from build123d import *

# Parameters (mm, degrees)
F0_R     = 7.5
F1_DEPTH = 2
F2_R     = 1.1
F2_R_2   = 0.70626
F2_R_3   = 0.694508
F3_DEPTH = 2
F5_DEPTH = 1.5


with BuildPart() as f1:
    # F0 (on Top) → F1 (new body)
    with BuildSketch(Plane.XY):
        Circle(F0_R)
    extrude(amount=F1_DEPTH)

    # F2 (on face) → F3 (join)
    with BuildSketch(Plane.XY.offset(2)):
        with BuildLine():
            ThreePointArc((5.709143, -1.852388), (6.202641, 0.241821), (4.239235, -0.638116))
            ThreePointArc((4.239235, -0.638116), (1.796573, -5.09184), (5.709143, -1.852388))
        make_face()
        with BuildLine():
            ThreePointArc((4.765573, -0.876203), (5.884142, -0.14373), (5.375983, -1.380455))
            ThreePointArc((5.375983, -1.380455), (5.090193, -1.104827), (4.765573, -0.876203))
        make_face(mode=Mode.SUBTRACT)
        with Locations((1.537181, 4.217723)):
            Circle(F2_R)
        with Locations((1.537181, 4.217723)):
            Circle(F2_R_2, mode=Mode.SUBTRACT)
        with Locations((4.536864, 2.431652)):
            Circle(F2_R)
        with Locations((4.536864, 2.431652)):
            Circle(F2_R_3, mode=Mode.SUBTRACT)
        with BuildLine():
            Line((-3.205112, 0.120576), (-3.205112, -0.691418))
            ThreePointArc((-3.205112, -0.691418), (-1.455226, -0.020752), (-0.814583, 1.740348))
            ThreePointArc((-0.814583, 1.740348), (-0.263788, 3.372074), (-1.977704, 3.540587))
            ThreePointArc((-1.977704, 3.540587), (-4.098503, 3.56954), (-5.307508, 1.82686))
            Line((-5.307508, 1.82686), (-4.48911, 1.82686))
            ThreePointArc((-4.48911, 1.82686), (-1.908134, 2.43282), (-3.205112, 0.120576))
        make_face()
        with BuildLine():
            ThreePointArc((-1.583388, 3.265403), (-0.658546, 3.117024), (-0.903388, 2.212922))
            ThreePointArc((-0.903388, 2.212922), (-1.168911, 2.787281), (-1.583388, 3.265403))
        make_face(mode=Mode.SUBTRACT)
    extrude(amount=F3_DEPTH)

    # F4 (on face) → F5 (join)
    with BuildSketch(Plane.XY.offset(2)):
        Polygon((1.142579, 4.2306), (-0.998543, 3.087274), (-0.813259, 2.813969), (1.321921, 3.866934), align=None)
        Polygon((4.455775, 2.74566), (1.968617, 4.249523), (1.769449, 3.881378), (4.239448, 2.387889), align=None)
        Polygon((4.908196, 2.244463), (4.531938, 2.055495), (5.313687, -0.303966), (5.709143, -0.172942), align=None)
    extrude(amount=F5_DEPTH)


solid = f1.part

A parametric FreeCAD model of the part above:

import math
import FreeCAD as App
import Part
import Sketcher
from FreeCAD import Vector
Q = App.Units.Quantity

doc = App.newDocument("Part")
body = doc.addObject("PartDesign::Body", "Body")

# Sketch on XY plane
sketch1 = body.newObject("Sketcher::SketchObject", "Sketch")
sketch1.AttachmentSupport = (doc.getObject("XY_Plane"), [""])
sketch1.MapMode = "FlatFace"
sketch1.addGeometry(Part.Circle(Vector(0, 0, 0), Vector(0, 0, 1), 8), False)
sketch1.addConstraint([
    Sketcher.Constraint("Coincident", 0, 3, -1, 1),
    Sketcher.Constraint("Diameter", 0, Q("15 mm")),
])
pad1 = body.newObject("PartDesign::Pad", "Pad")
pad1.Profile = sketch1
pad1.Length = 2

# Sketch on XY plane
sketch2 = body.newObject("Sketcher::SketchObject", "Sketch001")
sketch2.AttachmentSupport = (doc.getObject("XY_Plane"), [""])
sketch2.MapMode = "FlatFace"
sketch2.AttachmentOffset = App.Placement(Vector(0, 0, 2), App.Rotation())
sketch2.addGeometry([
    Part.ArcOfCircle(Part.Circle(Vector(5.4, -0.7, 0), Vector(0, 0, 1), 1.2), math.radians(-77), math.radians(178)),  # 0
    Part.ArcOfCircle(Part.Circle(Vector(3.4, -3.1, 0), Vector(0, 0, 1), 2.6), math.radians(72), math.radians(389)),  # 1
    Part.ArcOfCircle(Part.Circle(Vector(3.4, -3.1, 0), Vector(0, 0, 1), 2.6), math.radians(41.63), math.radians(59.25)),  # 2
    Part.ArcOfCircle(Part.Circle(Vector(5.4, -0.7, 0), Vector(0, 0, 1), 0.7), math.radians(-95), math.radians(196)),  # 3
    Part.Circle(Vector(1.5, 4.2, 0), Vector(0, 0, 1), 1.1),  # 4
    Part.Circle(Vector(1.5, 4.2, 0), Vector(0, 0, 1), 0.7),  # 5
    Part.Circle(Vector(4.5, 2.4, 0), Vector(0, 0, 1), 1.1),  # 6
    Part.Circle(Vector(4.5, 2.4, 0), Vector(0, 0, 1), 0.7),  # 7
    Part.LineSegment(Vector(-3.2, 0.1, 0), Vector(-3.2, -0.7, 0)),  # 8
    Part.ArcOfCircle(Part.Circle(Vector(-3.1, 1.6, 0), Vector(0, 0, 1), 2.3), math.radians(-94), math.radians(5)),  # 9
    Part.ArcOfCircle(Part.Circle(Vector(-1.2, 2.8, 0), Vector(0, 0, 1), 1.1), math.radians(-70), math.radians(136)),  # 10
    Part.ArcOfCircle(Part.Circle(Vector(-3.1, 1.6, 0), Vector(0, 0, 1), 2.3), math.radians(61), math.radians(173)),  # 11
    Part.LineSegment(Vector(-5.3, 1.8, 0), Vector(-4.5, 1.8, 0)),  # 12
    Part.ArcOfCircle(Part.Circle(Vector(-3.1, 1.6, 0), Vector(0, 0, 1), 1.4), math.radians(-96), math.radians(169)),  # 13
    Part.ArcOfCircle(Part.Circle(Vector(-3.1, 1.6, 0), Vector(0, 0, 1), 2.3), math.radians(17), math.radians(49)),  # 14
    Part.ArcOfCircle(Part.Circle(Vector(-1.2, 2.8, 0), Vector(0, 0, 1), 0.6), math.radians(-63), math.radians(129)),  # 15
], False)
sketch2.addConstraint([
    Sketcher.Constraint("Coincident", 0, 1, 1, 2),
    Sketcher.Constraint("Coincident", 1, 1, 0, 2),
    Sketcher.Constraint("Coincident", 2, 1, 3, 1),
    Sketcher.Constraint("Coincident", 3, 2, 2, 2),
    Sketcher.Constraint("Coincident", 8, 2, 9, 1),
    Sketcher.Constraint("Coincident", 9, 2, 10, 1),
    Sketcher.Constraint("Coincident", 10, 2, 11, 1),
    Sketcher.Constraint("Coincident", 11, 2, 12, 1),
    Sketcher.Constraint("Coincident", 12, 2, 13, 2),
    Sketcher.Constraint("Coincident", 13, 1, 8, 1),
    Sketcher.Constraint("Coincident", 14, 1, 15, 1),
    Sketcher.Constraint("Coincident", 15, 2, 14, 2),
    Sketcher.Constraint("Vertical", 8),
    Sketcher.Constraint("Horizontal", 12),
    Sketcher.Constraint("Coincident", 3, 3, 0, 3),
    Sketcher.Constraint("Coincident", 5, 3, 4, 3),
    Sketcher.Constraint("Coincident", 7, 3, 6, 3),
    Sketcher.Constraint("Coincident", 11, 3, 9, 3),
    Sketcher.Constraint("Coincident", 13, 3, 9, 3),
    Sketcher.Constraint("Coincident", 14, 3, 9, 3),
    Sketcher.Constraint("Coincident", 15, 3, 10, 3),
    Sketcher.Constraint("Equal", 4, 6),
    Sketcher.Constraint("Equal", 6, 10),
    Sketcher.Constraint("Equal", 9, 11),
    Sketcher.Constraint("Equal", 11, 14),
    Sketcher.Constraint("Diameter", 4, Q("2.2 mm")),
    Sketcher.Constraint("Radius", 0, Q("1.2 mm")),
    Sketcher.Constraint("Diameter", 5, Q("1.41252 mm")),
    Sketcher.Constraint("Radius", 1, Q("2.58574 mm")),
    Sketcher.Constraint("Radius", 3, Q("0.699909 mm")),
    Sketcher.Constraint("Radius", 9, Q("2.257781 mm")),
    Sketcher.Constraint("DistanceX", 15, 2, 14, 1, Q("0.68 mm")),
    Sketcher.Constraint("Diameter", 7, Q("1.389016 mm")),
    Sketcher.Constraint("DistanceX", 12, 1, 12, 2, Q("0.818398 mm")),
    Sketcher.Constraint("Radius", 2, Q("2.585715 mm")),
    Sketcher.Constraint("Radius", 13, Q("1.448218 mm")),
    Sketcher.Constraint("Radius", 15, Q("0.630017 mm")),
    Sketcher.Constraint("DistanceX", 1, 3, 0, 3, Q("1.995 mm")),
    Sketcher.Constraint("DistanceY", 1, 3, 0, 3, Q("2.415 mm")),
    Sketcher.Constraint("DistanceX", -1, 1, 2, 3, Q("3.443398 mm")),
    Sketcher.Constraint("DistanceX", 4, 3, 0, 3, Q("3.901202 mm")),
    Sketcher.Constraint("DistanceX", 2, 1, 3, 3, Q("0.0624 mm")),
    Sketcher.Constraint("DistanceX", 8, 2, 14, 3, Q("0.139798 mm")),
    Sketcher.Constraint("DistanceX", -1, 1, 4, 3, Q("1.537181 mm")),
    Sketcher.Constraint("DistanceX", 9, 3, -1, 1, Q("3.065311 mm")),
    Sketcher.Constraint("DistanceY", -1, 1, 9, 3, Q("1.56203 mm")),
    Sketcher.Constraint("DistanceY", 0, 1, -1, 1, Q("1.852388 mm")),
    Sketcher.Constraint("DistanceX", 15, 2, -1, 1, Q("1.583388 mm")),
    Sketcher.Constraint("DistanceX", 6, 3, 0, 3, Q("0.901519 mm")),
    Sketcher.Constraint("DistanceY", 6, 3, 4, 3, Q("1.786071 mm")),
    Sketcher.Constraint("DistanceY", 9, 3, 6, 3, Q("0.869622 mm")),
])
pad2 = body.newObject("PartDesign::Pad", "Pad001")
pad2.Profile = sketch2
pad2.Length = 2

# Sketch on XY plane
sketch3 = body.newObject("Sketcher::SketchObject", "Sketch002")
sketch3.AttachmentSupport = (doc.getObject("XY_Plane"), [""])
sketch3.MapMode = "FlatFace"
sketch3.AttachmentOffset = App.Placement(Vector(0, 0, 2), App.Rotation())
sketch3.addGeometry([
    Part.LineSegment(Vector(1.14, 4.23, 0), Vector(-1, 3.09, 0)),  # 0
    Part.LineSegment(Vector(-1, 3.09, 0), Vector(-0.81, 2.81, 0)),  # 1
    Part.LineSegment(Vector(-0.81, 2.81, 0), Vector(1.32, 3.87, 0)),  # 2
    Part.LineSegment(Vector(1.32, 3.87, 0), Vector(1.14, 4.23, 0)),  # 3
    Part.LineSegment(Vector(4.46, 2.75, 0), Vector(1.97, 4.25, 0)),  # 4
    Part.LineSegment(Vector(1.97, 4.25, 0), Vector(1.77, 3.88, 0)),  # 5
    Part.LineSegment(Vector(1.77, 3.88, 0), Vector(4.24, 2.39, 0)),  # 6
    Part.LineSegment(Vector(4.24, 2.39, 0), Vector(4.46, 2.75, 0)),  # 7
    Part.LineSegment(Vector(4.91, 2.24, 0), Vector(4.53, 2.06, 0)),  # 8
    Part.LineSegment(Vector(4.53, 2.06, 0), Vector(5.31, -0.3, 0)),  # 9
    Part.LineSegment(Vector(5.31, -0.3, 0), Vector(5.71, -0.17, 0)),  # 10
    Part.LineSegment(Vector(5.71, -0.17, 0), Vector(4.91, 2.24, 0)),  # 11
], False)
sketch3.addConstraint([
    Sketcher.Constraint("Coincident", 0, 2, 1, 1),
    Sketcher.Constraint("Coincident", 1, 2, 2, 1),
    Sketcher.Constraint("Coincident", 2, 2, 3, 1),
    Sketcher.Constraint("Coincident", 3, 2, 0, 1),
    Sketcher.Constraint("Coincident", 4, 2, 5, 1),
    Sketcher.Constraint("Coincident", 5, 2, 6, 1),
    Sketcher.Constraint("Coincident", 6, 2, 7, 1),
    Sketcher.Constraint("Coincident", 7, 2, 4, 1),
    Sketcher.Constraint("Coincident", 8, 2, 9, 1),
    Sketcher.Constraint("Coincident", 9, 2, 10, 1),
    Sketcher.Constraint("Coincident", 10, 2, 11, 1),
    Sketcher.Constraint("Coincident", 11, 2, 8, 1),
    Sketcher.Constraint("Perpendicular", 2, 3),
    Sketcher.Constraint("Parallel", 4, 6),
    Sketcher.Constraint("Perpendicular", 6, 7),
    Sketcher.Constraint("Perpendicular", 9, 10),
    Sketcher.Constraint("Perpendicular", 10, 11),
    Sketcher.Constraint("DistanceX", 5, 2, 6, 2, Q("2.469999 mm")),
    Sketcher.Constraint("Distance", 2, Q("2.380699 mm")),
    Sketcher.Constraint("DistanceY", -1, 1, 3, 2, Q("4.2306 mm")),
    Sketcher.Constraint("DistanceY", 10, 2, 7, 2, Q("2.918602 mm")),
    Sketcher.Constraint("Distance", 0, Q("2.427261 mm")),
    Sketcher.Constraint("Distance", 1, Q("0.330191 mm")),
    Sketcher.Constraint("Distance", 4, Q("2.906468 mm")),
    Sketcher.Constraint("DistanceX", 1, 2, -1, 1, Q("0.813259 mm")),
    Sketcher.Constraint("DistanceY", -1, 1, 1, 2, Q("2.813969 mm")),
    Sketcher.Constraint("DistanceX", -1, 1, 2, 2, Q("1.321921 mm")),
    Sketcher.Constraint("DistanceX", -1, 1, 5, 2, Q("1.769449 mm")),
    Sketcher.Constraint("DistanceY", -1, 1, 5, 2, Q("3.881378 mm")),
    Sketcher.Constraint("DistanceY", -1, 1, 6, 2, Q("2.387889 mm")),
    Sketcher.Constraint("DistanceY", -1, 1, 7, 2, Q("2.74566 mm")),
    Sketcher.Constraint("DistanceX", -1, 1, 8, 2, Q("4.531938 mm")),
    Sketcher.Constraint("DistanceY", 8, 2, 2, 2, Q("1.811439 mm")),
    Sketcher.Constraint("DistanceX", 8, 2, 9, 2, Q("0.781749 mm")),
    Sketcher.Constraint("DistanceY", 9, 2, 8, 2, Q("2.359461 mm")),
    Sketcher.Constraint("DistanceY", 8, 2, 11, 2, Q("0.188968 mm")),
])
pad3 = body.newObject("PartDesign::Pad", "Pad002")
pad3.Profile = sketch3
pad3.Length = 1.5

doc.recompute()
